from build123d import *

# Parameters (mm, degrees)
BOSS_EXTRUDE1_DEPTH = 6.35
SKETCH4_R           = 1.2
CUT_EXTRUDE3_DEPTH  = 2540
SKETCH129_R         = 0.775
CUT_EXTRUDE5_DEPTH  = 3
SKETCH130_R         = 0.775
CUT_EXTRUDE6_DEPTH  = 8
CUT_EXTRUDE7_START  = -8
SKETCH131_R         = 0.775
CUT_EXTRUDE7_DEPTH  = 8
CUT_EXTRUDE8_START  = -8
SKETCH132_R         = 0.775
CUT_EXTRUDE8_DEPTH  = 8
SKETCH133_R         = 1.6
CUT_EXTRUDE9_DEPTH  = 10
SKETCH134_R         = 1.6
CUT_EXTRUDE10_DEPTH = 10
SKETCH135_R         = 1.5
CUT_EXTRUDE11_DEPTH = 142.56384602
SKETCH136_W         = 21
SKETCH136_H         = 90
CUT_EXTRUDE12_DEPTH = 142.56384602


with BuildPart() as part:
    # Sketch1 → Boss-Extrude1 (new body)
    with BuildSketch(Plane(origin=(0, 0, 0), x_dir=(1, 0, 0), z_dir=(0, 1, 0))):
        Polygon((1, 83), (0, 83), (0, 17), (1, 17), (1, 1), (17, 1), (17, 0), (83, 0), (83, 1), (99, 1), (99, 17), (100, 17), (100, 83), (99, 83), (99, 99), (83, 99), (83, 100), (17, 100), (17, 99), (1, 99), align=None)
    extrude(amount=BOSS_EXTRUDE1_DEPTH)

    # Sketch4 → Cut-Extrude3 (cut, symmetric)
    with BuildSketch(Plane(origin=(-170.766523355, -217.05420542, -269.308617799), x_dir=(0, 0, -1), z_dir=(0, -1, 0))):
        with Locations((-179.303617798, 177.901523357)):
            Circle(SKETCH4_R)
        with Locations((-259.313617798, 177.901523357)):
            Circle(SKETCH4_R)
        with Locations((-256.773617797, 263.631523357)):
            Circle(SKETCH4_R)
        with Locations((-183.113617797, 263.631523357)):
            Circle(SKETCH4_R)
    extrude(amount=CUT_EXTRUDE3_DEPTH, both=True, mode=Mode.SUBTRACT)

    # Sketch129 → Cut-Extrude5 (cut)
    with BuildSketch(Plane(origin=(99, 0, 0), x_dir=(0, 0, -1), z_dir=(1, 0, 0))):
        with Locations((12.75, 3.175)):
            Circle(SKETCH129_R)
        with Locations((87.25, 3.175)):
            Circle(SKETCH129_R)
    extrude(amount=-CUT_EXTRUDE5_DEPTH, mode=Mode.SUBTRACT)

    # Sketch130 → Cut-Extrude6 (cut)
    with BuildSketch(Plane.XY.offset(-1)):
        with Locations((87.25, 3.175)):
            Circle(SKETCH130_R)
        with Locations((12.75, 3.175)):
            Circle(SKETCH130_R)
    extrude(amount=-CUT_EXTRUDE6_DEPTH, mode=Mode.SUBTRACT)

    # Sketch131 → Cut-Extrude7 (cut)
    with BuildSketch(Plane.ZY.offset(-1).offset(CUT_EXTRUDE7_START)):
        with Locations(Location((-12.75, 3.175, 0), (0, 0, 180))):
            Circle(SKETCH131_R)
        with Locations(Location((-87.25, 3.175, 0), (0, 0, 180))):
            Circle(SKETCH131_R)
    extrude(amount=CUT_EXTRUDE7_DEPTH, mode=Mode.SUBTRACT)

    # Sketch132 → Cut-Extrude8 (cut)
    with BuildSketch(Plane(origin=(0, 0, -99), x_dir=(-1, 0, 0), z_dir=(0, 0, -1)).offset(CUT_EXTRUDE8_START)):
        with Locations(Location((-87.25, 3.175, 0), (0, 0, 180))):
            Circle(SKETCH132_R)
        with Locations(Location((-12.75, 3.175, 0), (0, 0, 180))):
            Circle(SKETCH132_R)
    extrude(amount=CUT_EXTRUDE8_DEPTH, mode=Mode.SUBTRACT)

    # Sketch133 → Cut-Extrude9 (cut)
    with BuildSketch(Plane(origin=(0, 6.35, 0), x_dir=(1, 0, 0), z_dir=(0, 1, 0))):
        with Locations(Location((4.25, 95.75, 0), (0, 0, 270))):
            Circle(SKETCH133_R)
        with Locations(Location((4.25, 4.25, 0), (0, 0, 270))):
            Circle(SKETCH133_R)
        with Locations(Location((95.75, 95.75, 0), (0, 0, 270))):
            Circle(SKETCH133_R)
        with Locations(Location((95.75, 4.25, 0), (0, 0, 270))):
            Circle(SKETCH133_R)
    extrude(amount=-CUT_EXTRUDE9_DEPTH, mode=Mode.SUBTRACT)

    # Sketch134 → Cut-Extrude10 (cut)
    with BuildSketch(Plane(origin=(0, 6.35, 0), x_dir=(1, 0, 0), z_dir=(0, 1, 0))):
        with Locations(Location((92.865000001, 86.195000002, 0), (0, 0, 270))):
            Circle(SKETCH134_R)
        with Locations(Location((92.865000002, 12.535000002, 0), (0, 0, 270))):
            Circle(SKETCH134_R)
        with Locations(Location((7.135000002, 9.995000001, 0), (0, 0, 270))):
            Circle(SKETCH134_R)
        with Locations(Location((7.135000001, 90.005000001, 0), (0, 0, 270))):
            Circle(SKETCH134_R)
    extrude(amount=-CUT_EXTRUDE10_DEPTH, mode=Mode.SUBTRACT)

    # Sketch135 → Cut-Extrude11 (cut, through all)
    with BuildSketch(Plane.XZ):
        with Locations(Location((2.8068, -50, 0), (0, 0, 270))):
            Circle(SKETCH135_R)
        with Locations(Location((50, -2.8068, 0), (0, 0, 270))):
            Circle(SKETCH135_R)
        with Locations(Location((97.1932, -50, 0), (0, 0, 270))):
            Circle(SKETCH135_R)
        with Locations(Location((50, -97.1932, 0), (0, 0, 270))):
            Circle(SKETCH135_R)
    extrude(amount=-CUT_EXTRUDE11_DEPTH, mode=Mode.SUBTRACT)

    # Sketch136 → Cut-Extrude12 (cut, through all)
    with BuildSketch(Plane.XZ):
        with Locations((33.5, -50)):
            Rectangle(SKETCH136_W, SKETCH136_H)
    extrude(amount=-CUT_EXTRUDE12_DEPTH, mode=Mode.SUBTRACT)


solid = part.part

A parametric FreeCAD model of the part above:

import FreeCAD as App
import Part
import Sketcher
Q = App.Units.Quantity


def add_polygon(sketch, points):
    """Adds a closed chain of lines whose ends are joined by coincident constraints."""
    first, n = sketch.GeometryCount, len(points)
    for a, b in zip(points, points[1:] + points[:1]):
        sketch.addGeometry(Part.LineSegment(App.Vector(*a, 0), App.Vector(*b, 0)), False)
    for i in range(n):
        sketch.addConstraint(Sketcher.Constraint("Coincident", first + i, 2, first + (i + 1) % n, 1))

doc = App.newDocument("Part")
body = doc.addObject("PartDesign::Body", "Body")

# Sketch on XZ plane
sketch1 = doc.addObject("Sketcher::SketchObject", "Sketch")
body.addObject(sketch1)
sketch1.AttachmentSupport = (doc.XZ_Plane, [""])
sketch1.MapMode = "FlatFace"
add_polygon(sketch1, [(1, -83), (0, -83), (0, -17), (1, -17), (1, -1), (17, -1), (17, 0), (83, 0), (83, -1), (99, -1), (99, -17), (100, -17), (100, -83), (99, -83), (99, -99), (83, -99), (83, -100), (17, -100), (17, -99), (1, -99)])  # lines 0-19
sketch1.addConstraint(Sketcher.Constraint("Horizontal", 0))
sketch1.addConstraint(Sketcher.Constraint("Vertical", 1))
sketch1.addConstraint(Sketcher.Constraint("Horizontal", 2))
sketch1.addConstraint(Sketcher.Constraint("Vertical", 3))
sketch1.addConstraint(Sketcher.Constraint("Horizontal", 4))
sketch1.addConstraint(Sketcher.Constraint("Vertical", 5))
sketch1.addConstraint(Sketcher.Constraint("Horizontal", 6))
sketch1.addConstraint(Sketcher.Constraint("Vertical", 7))
sketch1.addConstraint(Sketcher.Constraint("Horizontal", 8))
sketch1.addConstraint(Sketcher.Constraint("Vertical", 9))
sketch1.addConstraint(Sketcher.Constraint("Horizontal", 10))
sketch1.addConstraint(Sketcher.Constraint("Vertical", 11))
sketch1.addConstraint(Sketcher.Constraint("Horizontal", 12))
sketch1.addConstraint(Sketcher.Constraint("Vertical", 13))
sketch1.addConstraint(Sketcher.Constraint("Horizontal", 14))
sketch1.addConstraint(Sketcher.Constraint("Vertical", 15))
sketch1.addConstraint(Sketcher.Constraint("Horizontal", 16))
sketch1.addConstraint(Sketcher.Constraint("Vertical", 17))
sketch1.addConstraint(Sketcher.Constraint("Horizontal", 18))
sketch1.addConstraint(Sketcher.Constraint("Vertical", 19))
sketch1.addConstraint(Sketcher.Constraint("PointOnObject", 0, 2, -2))
sketch1.addConstraint(Sketcher.Constraint("PointOnObject", 5, 2, -1))
sketch1.addConstraint(Sketcher.Constraint("Horizontal", 4, 2, 7, 2))
sketch1.addConstraint(Sketcher.Constraint("Horizontal", 2, 2, 9, 2))
sketch1.addConstraint(Sketcher.Constraint("Horizontal", 0, 2, 11, 2))
sketch1.addConstraint(Sketcher.Constraint("Horizontal", 14, 2, 17, 2))
sketch1.addConstraint(Sketcher.Constraint("Vertical", 9, 2, 12, 2))
sketch1.addConstraint(Sketcher.Constraint("Vertical", 7, 2, 14, 2))
sketch1.addConstraint(Sketcher.Constraint("Vertical", 5, 2, 16, 2))
sketch1.addConstraint(Sketcher.Constraint("Vertical", 3, 2, 18, 2))
sketch1.addConstraint(Sketcher.Constraint("Equal", 4, 8))
sketch1.addConstraint(Sketcher.Constraint("Equal", 2, 10))
sketch1.addConstraint(Sketcher.Constraint("Equal", 16, 1))
sketch1.addConstraint(Sketcher.Constraint("Equal", 18, 3))
sketch1.addConstraint(Sketcher.Constraint("Equal", 12, 5))
sketch1.addConstraint(Sketcher.Constraint("Equal", 9, 13))
sketch1.addConstraint(Sketcher.Constraint("Equal", 7, 15))
sketch1.addConstraint(Sketcher.Constraint("DistanceX", 0, 2, 0, 1, Q("1 mm")))
sketch1.addConstraint(Sketcher.Constraint("DistanceX", 4, 1, 4, 2, Q("16 mm")))
sketch1.addConstraint(Sketcher.Constraint("DistanceX", 6, 1, 6, 2, Q("66 mm")))
pad1 = doc.addObject("PartDesign::Pad", "Pad")
body.addObject(pad1)
pad1.Profile = sketch1
pad1.Length = 6.35
pad1.Reversed = True

# Sketch on XZ plane
sketch2 = doc.addObject("Sketcher::SketchObject", "Sketch001")
body.addObject(sketch2)
sketch2.AttachmentSupport = (doc.XZ_Plane, [""])
sketch2.MapMode = "FlatFace"
sketch2.AttachmentOffset = App.Placement(App.Vector(0, 0, 217.054205), App.Rotation())
sketch2.addGeometry(Part.Circle(App.Vector(7.1, -90, 0), App.Vector(0, 0, 1), 1.2), False)
sketch2.addGeometry(Part.Circle(App.Vector(7.1, -10, 0), App.Vector(0, 0, 1), 1.2), False)
sketch2.addGeometry(Part.Circle(App.Vector(92.9, -12.5, 0), App.Vector(0, 0, 1), 1.2), False)
sketch2.addGeometry(Part.Circle(App.Vector(92.9, -86.2, 0), App.Vector(0, 0, 1), 1.2), False)
sketch2.addConstraint(Sketcher.Constraint("Equal", 0, 1))
sketch2.addConstraint(Sketcher.Constraint("Equal", 1, 2))
sketch2.addConstraint(Sketcher.Constraint("Equal", 2, 3))
sketch2.addConstraint(Sketcher.Constraint("Vertical", 0, 3, 1, 3))
sketch2.addConstraint(Sketcher.Constraint("Vertical", 2, 3, 3, 3))
sketch2.addConstraint(Sketcher.Constraint("Diameter", 0, Q("2.4 mm")))
sketch2.addConstraint(Sketcher.Constraint("DistanceY", 3, 3, 1, 3, Q("76.2 mm")))
sketch2.addConstraint(Sketcher.Constraint("DistanceY", 0, 3, 1, 3, Q("80.01 mm")))
sketch2.addConstraint(Sketcher.Constraint("DistanceX", 1, 3, 2, 3, Q("85.73 mm")))
sketch2.addConstraint(Sketcher.Constraint("DistanceY", 2, 3, 1, 3, Q("2.54 mm")))
sketch2.addConstraint(Sketcher.Constraint("DistanceX", -1, 1, 0, 3, Q("7.135 mm")))
sketch2.addConstraint(Sketcher.Constraint("DistanceY", 0, 3, -1, 1, Q("90.005 mm")))
pocket1 = doc.addObject("PartDesign::Pocket", "Pocket")
body.addObject(pocket1)
pocket1.Profile = sketch2
pocket1.Length = 5080
pocket1.Midplane = True

# Sketch on YZ plane
sketch3 = doc.addObject("Sketcher::SketchObject", "Sketch002")
body.addObject(sketch3)
sketch3.AttachmentSupport = (doc.YZ_Plane, [""])
sketch3.MapMode = "FlatFace"
sketch3.AttachmentOffset = App.Placement(App.Vector(0, 0, 99), App.Rotation())
sketch3.addGeometry(Part.Circle(App.Vector(3.2, -12.8, 0), App.Vector(0, 0, 1), 0.8), False)
sketch3.addGeometry(Part.Circle(App.Vector(3.2, -87.2, 0), App.Vector(0, 0, 1), 0.8), False)
sketch3.addConstraint(Sketcher.Constraint("Equal", 0, 1))
sketch3.addConstraint(Sketcher.Constraint("Vertical", 0, 3, 1, 3))
sketch3.addConstraint(Sketcher.Constraint("Diameter", 0, Q("1.55 mm")))
sketch3.addConstraint(Sketcher.Constraint("DistanceY", 1, 3, 0, 3, Q("74.5 mm")))
sketch3.addConstraint(Sketcher.Constraint("DistanceY", 0, 3, -1, 1, Q("12.75 mm")))
sketch3.addConstraint(Sketcher.Constraint("DistanceX", -1, 1, 0, 3, Q("3.175 mm")))
pocket2 = doc.addObject("PartDesign::Pocket", "Pocket001")
body.addObject(pocket2)
pocket2.Profile = sketch3
pocket2.Length = 3

# Sketch on XY plane
sketch4 = doc.addObject("Sketcher::SketchObject", "Sketch003")
body.addObject(sketch4)
sketch4.AttachmentSupport = (doc.XY_Plane, [""])
sketch4.MapMode = "FlatFace"
sketch4.AttachmentOffset = App.Placement(App.Vector(0, 0, -1), App.Rotation())
sketch4.addGeometry(Part.Circle(App.Vector(87.2, 3.2, 0), App.Vector(0, 0, 1), 0.8), False)
sketch4.addGeometry(Part.Circle(App.Vector(12.8, 3.2, 0), App.Vector(0, 0, 1), 0.8), False)
sketch4.addConstraint(Sketcher.Constraint("Equal", 0, 1))
sketch4.addConstraint(Sketcher.Constraint("Horizontal", 0, 3, 1, 3))
sketch4.addConstraint(Sketcher.Constraint("Diameter", 0, Q("1.55 mm")))
sketch4.addConstraint(Sketcher.Constraint("DistanceX", 1, 3, 0, 3, Q("74.5 mm")))
sketch4.addConstraint(Sketcher.Constraint("DistanceX", -1, 1, 0, 3, Q("87.25 mm")))
sketch4.addConstraint(Sketcher.Constraint("DistanceY", -1, 1, 0, 3, Q("3.175 mm")))
pocket3 = doc.addObject("PartDesign::Pocket", "Pocket002")
body.addObject(pocket3)
pocket3.Profile = sketch4
pocket3.Length = 8

# Sketch on YZ plane
sketch5 = doc.addObject("Sketcher::SketchObject", "Sketch004")
body.addObject(sketch5)
sketch5.AttachmentSupport = (doc.YZ_Plane, [""])
sketch5.MapMode = "FlatFace"
sketch5.AttachmentOffset = App.Placement(App.Vector(0, 0, 9), App.Rotation())
sketch5.addGeometry(Part.Circle(App.Vector(3.2, -12.8, 0), App.Vector(0, 0, 1), 0.8), False)
sketch5.addGeometry(Part.Circle(App.Vector(3.2, -87.2, 0), App.Vector(0, 0, 1), 0.8), False)
sketch5.addConstraint(Sketcher.Constraint("Equal", 0, 1))
sketch5.addConstraint(Sketcher.Constraint("Vertical", 0, 3, 1, 3))
sketch5.addConstraint(Sketcher.Constraint("Diameter", 0, Q("1.55 mm")))
sketch5.addConstraint(Sketcher.Constraint("DistanceY", 1, 3, 0, 3, Q("74.5 mm")))
sketch5.addConstraint(Sketcher.Constraint("DistanceY", 0, 3, -1, 1, Q("12.75 mm")))
sketch5.addConstraint(Sketcher.Constraint("DistanceX", -1, 1, 0, 3, Q("3.175 mm")))
pocket4 = doc.addObject("PartDesign::Pocket", "Pocket003")
body.addObject(pocket4)
pocket4.Profile = sketch5
pocket4.Length = 8

# Sketch on XY plane
sketch6 = doc.addObject("Sketcher::SketchObject", "Sketch005")
body.addObject(sketch6)
sketch6.AttachmentSupport = (doc.XY_Plane, [""])
sketch6.MapMode = "FlatFace"
sketch6.AttachmentOffset = App.Placement(App.Vector(0, 0, -91), App.Rotation())
sketch6.addGeometry(Part.Circle(App.Vector(87.2, 3.2, 0), App.Vector(0, 0, 1), 0.8), False)
sketch6.addGeometry(Part.Circle(App.Vector(12.8, 3.2, 0), App.Vector(0, 0, 1), 0.8), False)
sketch6.addConstraint(Sketcher.Constraint("Equal", 0, 1))
sketch6.addConstraint(Sketcher.Constraint("Horizontal", 0, 3, 1, 3))
sketch6.addConstraint(Sketcher.Constraint("Diameter", 0, Q("1.55 mm")))
sketch6.addConstraint(Sketcher.Constraint("DistanceX", 1, 3, 0, 3, Q("74.5 mm")))
sketch6.addConstraint(Sketcher.Constraint("DistanceX", -1, 1, 0, 3, Q("87.25 mm")))
sketch6.addConstraint(Sketcher.Constraint("DistanceY", -1, 1, 0, 3, Q("3.175 mm")))
pocket5 = doc.addObject("PartDesign::Pocket", "Pocket004")
body.addObject(pocket5)
pocket5.Profile = sketch6
pocket5.Length = 8

# Sketch on XZ plane
sketch7 = doc.addObject("Sketcher::SketchObject", "Sketch006")
body.addObject(sketch7)
sketch7.AttachmentSupport = (doc.XZ_Plane, [""])
sketch7.MapMode = "FlatFace"
sketch7.AttachmentOffset = App.Placement(App.Vector(0, 0, -6.35), App.Rotation())
sketch7.addGeometry(Part.Circle(App.Vector(4.2, -95.8, 0), App.Vector(0, 0, 1), 1.6), False)
sketch7.addGeometry(Part.Circle(App.Vector(4.2, -4.2, 0), App.Vector(0, 0, 1), 1.6), False)
sketch7.addGeometry(Part.Circle(App.Vector(95.8, -95.8, 0), App.Vector(0, 0, 1), 1.6), False)
sketch7.addGeometry(Part.Circle(App.Vector(95.8, -4.2, 0), App.Vector(0, 0, 1), 1.6), False)
sketch7.addConstraint(Sketcher.Constraint("Equal", 0, 1))
sketch7.addConstraint(Sketcher.Constraint("Equal", 1, 2))
sketch7.addConstraint(Sketcher.Constraint("Equal", 2, 3))
sketch7.addConstraint(Sketcher.Constraint("Horizontal", 0, 3, 2, 3))
sketch7.addConstraint(Sketcher.Constraint("Horizontal", 1, 3, 3, 3))
sketch7.addConstraint(Sketcher.Constraint("Vertical", 0, 3, 1, 3))
sketch7.addConstraint(Sketcher.Constraint("Vertical", 2, 3, 3, 3))
sketch7.addConstraint(Sketcher.Constraint("Diameter", 0, Q("3.2 mm")))
sketch7.addConstraint(Sketcher.Constraint("DistanceY", 0, 3, 1, 3, Q("91.5 mm")))
sketch7.addConstraint(Sketcher.Constraint("DistanceX", 0, 3, 2, 3, Q("91.5 mm")))
sketch7.addConstraint(Sketcher.Constraint("DistanceX", -1, 1, 0, 3, Q("4.25 mm")))
sketch7.addConstraint(Sketcher.Constraint("DistanceY", 0, 3, -1, 1, Q("95.75 mm")))
pocket6 = doc.addObject("PartDesign::Pocket", "Pocket005")
body.addObject(pocket6)
pocket6.Profile = sketch7
pocket6.Length = 10
pocket6.Reversed = True

# Sketch on XZ plane
sketch8 = doc.addObject("Sketcher::SketchObject", "Sketch007")
body.addObject(sketch8)
sketch8.AttachmentSupport = (doc.XZ_Plane, [""])
sketch8.MapMode = "FlatFace"
sketch8.AttachmentOffset = App.Placement(App.Vector(0, 0, -6.35), App.Rotation())
sketch8.addGeometry(Part.Circle(App.Vector(92.9, -86.2, 0), App.Vector(0, 0, 1), 1.6), False)
sketch8.addGeometry(Part.Circle(App.Vector(92.9, -12.5, 0), App.Vector(0, 0, 1), 1.6), False)
sketch8.addGeometry(Part.Circle(App.Vector(7.1, -10, 0), App.Vector(0, 0, 1), 1.6), False)
sketch8.addGeometry(Part.Circle(App.Vector(7.1, -90, 0), App.Vector(0, 0, 1), 1.6), False)
sketch8.addConstraint(Sketcher.Constraint("Equal", 0, 1))
sketch8.addConstraint(Sketcher.Constraint("Equal", 1, 2))
sketch8.addConstraint(Sketcher.Constraint("Equal", 2, 3))
sketch8.addConstraint(Sketcher.Constraint("Vertical", 0, 3, 1, 3))
sketch8.addConstraint(Sketcher.Constraint("Vertical", 2, 3, 3, 3))
sketch8.addConstraint(Sketcher.Constraint("Diameter", 0, Q("3.2 mm")))
sketch8.addConstraint(Sketcher.Constraint("DistanceY", 0, 3, 2, 3, Q("76.2 mm")))
sketch8.addConstraint(Sketcher.Constraint("DistanceY", 0, 3, 1, 3, Q("73.66 mm")))
sketch8.addConstraint(Sketcher.Constraint("DistanceX", 2, 3, 1, 3, Q("85.73 mm")))
sketch8.addConstraint(Sketcher.Constraint("DistanceY", 3, 3, 2, 3, Q("80.01 mm")))
sketch8.addConstraint(Sketcher.Constraint("DistanceX", -1, 1, 0, 3, Q("92.865 mm")))
sketch8.addConstraint(Sketcher.Constraint("DistanceY", 0, 3, -1, 1, Q("86.195 mm")))
pocket7 = doc.addObject("PartDesign::Pocket", "Pocket006")
body.addObject(pocket7)
pocket7.Profile = sketch8
pocket7.Length = 10
pocket7.Reversed = True

# Sketch on XZ plane
sketch9 = doc.addObject("Sketcher::SketchObject", "Sketch008")
body.addObject(sketch9)
sketch9.AttachmentSupport = (doc.XZ_Plane, [""])
sketch9.MapMode = "FlatFace"
sketch9.addGeometry(Part.Circle(App.Vector(2.8, -50, 0), App.Vector(0, 0, 1), 1.5), False)
sketch9.addGeometry(Part.Circle(App.Vector(50, -2.8, 0), App.Vector(0, 0, 1), 1.5), False)
sketch9.addGeometry(Part.Circle(App.Vector(97.2, -50, 0), App.Vector(0, 0, 1), 1.5), False)
sketch9.addGeometry(Part.Circle(App.Vector(50, -97.2, 0), App.Vector(0, 0, 1), 1.5), False)
sketch9.addConstraint(Sketcher.Constraint("Equal", 0, 1))
sketch9.addConstraint(Sketcher.Constraint("Equal", 1, 2))
sketch9.addConstraint(Sketcher.Constraint("Equal", 2, 3))
sketch9.addConstraint(Sketcher.Constraint("Horizontal", 0, 3, 2, 3))
sketch9.addConstraint(Sketcher.Constraint("Vertical", 1, 3, 3, 3))
sketch9.addConstraint(Sketcher.Constraint("Diameter", 0, Q("3 mm")))
sketch9.addConstraint(Sketcher.Constraint("DistanceY", 0, 3, -1, 1, Q("50 mm")))
sketch9.addConstraint(Sketcher.Constraint("DistanceX", -1, 1, 1, 3, Q("50 mm")))
sketch9.addConstraint(Sketcher.Constraint("DistanceX", -1, 1, 0, 3, Q("2.8068 mm")))
sketch9.addConstraint(Sketcher.Constraint("DistanceY", 1, 3, -1, 1, Q("2.8068 mm")))
sketch9.addConstraint(Sketcher.Constraint("DistanceX", -1, 1, 2, 3, Q("97.1932 mm")))
sketch9.addConstraint(Sketcher.Constraint("DistanceY", 3, 3, -1, 1, Q("97.1932 mm")))
pocket8 = doc.addObject("PartDesign::Pocket", "Pocket007")
body.addObject(pocket8)
pocket8.Profile = sketch9
pocket8.Type = "ThroughAll"

# Sketch on XZ plane
sketch10 = doc.addObject("Sketcher::SketchObject", "Sketch009")
body.addObject(sketch10)
sketch10.AttachmentSupport = (doc.XZ_Plane, [""])
sketch10.MapMode = "FlatFace"
add_polygon(sketch10, [(23, -5), (23, -95), (44, -95), (44, -5)])  # lines 0-3
sketch10.addConstraint(Sketcher.Constraint("Vertical", 0))
sketch10.addConstraint(Sketcher.Constraint("Horizontal", 1))
sketch10.addConstraint(Sketcher.Constraint("Vertical", 2))
sketch10.addConstraint(Sketcher.Constraint("Horizontal", 3))
sketch10.addConstraint(Sketcher.Constraint("DistanceX", 1, 1, 1, 2, Q("21 mm")))
sketch10.addConstraint(Sketcher.Constraint("DistanceY", 0, 2, 0, 1, Q("90 mm")))
sketch10.addConstraint(Sketcher.Constraint("DistanceX", -1, 1, 0, 2, Q("23 mm")))
sketch10.addConstraint(Sketcher.Constraint("DistanceY", 0, 2, -1, 1, Q("95 mm")))
pocket9 = doc.addObject("PartDesign::Pocket", "Pocket008")
body.addObject(pocket9)
pocket9.Profile = sketch10
pocket9.Type = "ThroughAll"

doc.recompute()
